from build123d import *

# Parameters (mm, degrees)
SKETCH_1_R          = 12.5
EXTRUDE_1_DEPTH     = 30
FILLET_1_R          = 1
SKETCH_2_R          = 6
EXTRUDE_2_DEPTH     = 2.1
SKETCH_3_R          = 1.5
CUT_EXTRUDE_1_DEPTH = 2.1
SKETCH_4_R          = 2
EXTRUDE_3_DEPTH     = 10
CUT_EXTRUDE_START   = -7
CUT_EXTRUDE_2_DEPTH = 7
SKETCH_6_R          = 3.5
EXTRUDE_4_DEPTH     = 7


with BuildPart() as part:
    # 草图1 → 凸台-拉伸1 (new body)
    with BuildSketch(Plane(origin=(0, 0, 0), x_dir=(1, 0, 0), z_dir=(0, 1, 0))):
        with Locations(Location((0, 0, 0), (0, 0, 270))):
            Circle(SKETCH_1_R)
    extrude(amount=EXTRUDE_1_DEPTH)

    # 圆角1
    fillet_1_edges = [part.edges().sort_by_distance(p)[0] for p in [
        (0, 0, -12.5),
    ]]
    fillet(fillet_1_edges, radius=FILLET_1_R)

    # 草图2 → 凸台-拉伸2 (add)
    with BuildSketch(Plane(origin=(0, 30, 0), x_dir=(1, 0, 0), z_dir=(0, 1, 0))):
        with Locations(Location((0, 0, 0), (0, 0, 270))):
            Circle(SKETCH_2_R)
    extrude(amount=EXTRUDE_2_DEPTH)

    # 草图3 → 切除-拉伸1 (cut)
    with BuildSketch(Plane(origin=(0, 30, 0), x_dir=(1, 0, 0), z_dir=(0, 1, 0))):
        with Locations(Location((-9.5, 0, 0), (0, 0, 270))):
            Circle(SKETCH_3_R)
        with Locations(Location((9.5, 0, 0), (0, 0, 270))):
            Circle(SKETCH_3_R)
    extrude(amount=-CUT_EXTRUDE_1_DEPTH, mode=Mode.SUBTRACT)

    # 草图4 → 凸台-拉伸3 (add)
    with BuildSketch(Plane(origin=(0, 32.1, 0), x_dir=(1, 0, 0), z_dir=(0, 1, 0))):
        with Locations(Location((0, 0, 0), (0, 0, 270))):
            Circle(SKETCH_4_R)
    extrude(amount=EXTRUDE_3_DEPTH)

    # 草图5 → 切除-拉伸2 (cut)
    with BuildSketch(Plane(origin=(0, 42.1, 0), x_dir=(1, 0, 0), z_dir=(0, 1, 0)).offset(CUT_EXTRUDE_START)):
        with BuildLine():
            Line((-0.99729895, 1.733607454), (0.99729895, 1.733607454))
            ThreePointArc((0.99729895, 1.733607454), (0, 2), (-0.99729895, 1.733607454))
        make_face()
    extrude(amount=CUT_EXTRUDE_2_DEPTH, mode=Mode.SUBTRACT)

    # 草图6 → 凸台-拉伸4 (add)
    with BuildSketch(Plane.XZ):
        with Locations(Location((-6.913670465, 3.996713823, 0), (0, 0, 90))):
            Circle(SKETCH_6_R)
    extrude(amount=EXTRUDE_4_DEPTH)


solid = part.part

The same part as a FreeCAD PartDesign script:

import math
import FreeCAD as App
import Part
import Sketcher
from FreeCAD import Vector
Q = App.Units.Quantity


def edges_at(feature, points):
    """Names of the edges that pass closest to the given points."""
    edges = feature.Shape.Edges
    near = lambda p: min(range(len(edges)), key=lambda i: edges[i].distToShape(Part.Vertex(*p))[0])
    return sorted({f"Edge{near(p) + 1}" for p in points})

doc = App.newDocument("Part")
body = doc.addObject("PartDesign::Body", "Body")

sketch1 = doc.addObject("Sketcher::SketchObject", "Sketch")
body.addObject(sketch1)
sketch1.AttachmentSupport = (doc.XZ_Plane, [""])
sketch1.MapMode = "FlatFace"
sketch1.addGeometry(Part.Circle(Vector(0, 0, 0), Vector(0, 0, 1), 12), False)
sketch1.addConstraint([
    Sketcher.Constraint("Coincident", 0, 3, -1, 1),
    Sketcher.Constraint("Diameter", 0, Q("25 mm")),
])
pad1 = doc.addObject("PartDesign::Pad", "Pad")
body.addObject(pad1)
pad1.Profile = sketch1
pad1.Length = 30
pad1.Reversed = True
doc.recompute()

fillet = doc.addObject("PartDesign::Fillet", "Fillet")
body.addObject(fillet)
fillet.Base = (pad1, edges_at(pad1, [(0, 0, -12.5)]))
fillet.Radius = 1

sketch2 = doc.addObject("Sketcher::SketchObject", "Sketch001")
body.addObject(sketch2)
sketch2.AttachmentSupport = (doc.XZ_Plane, [""])
sketch2.MapMode = "FlatFace"
sketch2.AttachmentOffset = App.Placement(Vector(0, 0, -30), App.Rotation())
sketch2.addGeometry(Part.Circle(Vector(0, 0, 0), Vector(0, 0, 1), 6), False)
sketch2.addConstraint([
    Sketcher.Constraint("Coincident", 0, 3, -1, 1),
    Sketcher.Constraint("Diameter", 0, Q("12 mm")),
])
pad2 = doc.addObject("PartDesign::Pad", "Pad001")
body.addObject(pad2)
pad2.Profile = sketch2
pad2.Length = 2.1
pad2.Reversed = True

sketch3 = doc.addObject("Sketcher::SketchObject", "Sketch002")
body.addObject(sketch3)
sketch3.AttachmentSupport = (doc.XZ_Plane, [""])
sketch3.MapMode = "FlatFace"
sketch3.AttachmentOffset = App.Placement(Vector(0, 0, -30), App.Rotation())
sketch3.addGeometry([
    Part.Circle(Vector(-9.5, 0, 0), Vector(0, 0, 1), 1.5),
    Part.Circle(Vector(9.5, 0, 0), Vector(0, 0, 1), 1.5),
], False)
sketch3.addConstraint([
    Sketcher.Constraint("Equal", 0, 1),
    Sketcher.Constraint("Symmetric", 0, 3, 1, 3, -1, 1),
    Sketcher.Constraint("PointOnObject", 0, 3, -1),
    Sketcher.Constraint("Diameter", 0, Q("3 mm")),
    Sketcher.Constraint("DistanceX", 0, 3, 1, 3, Q("19 mm")),
])
pocket1 = doc.addObject("PartDesign::Pocket", "Pocket")
body.addObject(pocket1)
pocket1.Profile = sketch3
pocket1.Length = 2.1
pocket1.Reversed = True

sketch4 = doc.addObject("Sketcher::SketchObject", "Sketch003")
body.addObject(sketch4)
sketch4.AttachmentSupport = (doc.XZ_Plane, [""])
sketch4.MapMode = "FlatFace"
sketch4.AttachmentOffset = App.Placement(Vector(0, 0, -32.1), App.Rotation())
sketch4.addGeometry(Part.Circle(Vector(0, 0, 0), Vector(0, 0, 1), 2), False)
sketch4.addConstraint([
    Sketcher.Constraint("Coincident", 0, 3, -1, 1),
    Sketcher.Constraint("Diameter", 0, Q("4 mm")),
])
pad3 = doc.addObject("PartDesign::Pad", "Pad002")
body.addObject(pad3)
pad3.Profile = sketch4
pad3.Length = 10
pad3.Reversed = True

sketch5 = doc.addObject("Sketcher::SketchObject", "Sketch004")
body.addObject(sketch5)
sketch5.AttachmentSupport = (doc.XZ_Plane, [""])
sketch5.MapMode = "FlatFace"
sketch5.AttachmentOffset = App.Placement(Vector(0, 0, -35.1), App.Rotation())
sketch5.addGeometry([
    Part.LineSegment(Vector(-1, -1.7, 0), Vector(1, -1.7, 0)),
    Part.ArcOfCircle(Part.Circle(Vector(0, 0, 0), Vector(0, 0, 1), 2), math.radians(-120), math.radians(-60)),
], False)
sketch5.addConstraint([
    Sketcher.Constraint("Coincident", 0, 1, 1, 1),
    Sketcher.Constraint("Coincident", 1, 2, 0, 2),
    Sketcher.Constraint("Horizontal", 0),
    Sketcher.Constraint("Coincident", 1, 3, -1, 1),
    Sketcher.Constraint("Radius", 1, Q("2 mm")),
    Sketcher.Constraint("DistanceX", 0, 1, -1, 1, Q("0.997299 mm")),
])
pocket2 = doc.addObject("PartDesign::Pocket", "Pocket001")
body.addObject(pocket2)
pocket2.Profile = sketch5
pocket2.Length = 7

sketch6 = doc.addObject("Sketcher::SketchObject", "Sketch005")
body.addObject(sketch6)
sketch6.AttachmentSupport = (doc.XZ_Plane, [""])
sketch6.MapMode = "FlatFace"
sketch6.addGeometry(Part.Circle(Vector(-6.9, 4, 0), Vector(0, 0, 1), 3.5), False)
sketch6.addConstraint([
    Sketcher.Constraint("Diameter", 0, Q("7 mm")),
    Sketcher.Constraint("DistanceX", 0, 3, -1, 1, Q("6.91367 mm")),
    Sketcher.Constraint("DistanceY", -1, 1, 0, 3, Q("3.996714 mm")),
])
pad4 = doc.addObject("PartDesign::Pad", "Pad003")
body.addObject(pad4)
pad4.Profile = sketch6
pad4.Length = 7

doc.recompute()
